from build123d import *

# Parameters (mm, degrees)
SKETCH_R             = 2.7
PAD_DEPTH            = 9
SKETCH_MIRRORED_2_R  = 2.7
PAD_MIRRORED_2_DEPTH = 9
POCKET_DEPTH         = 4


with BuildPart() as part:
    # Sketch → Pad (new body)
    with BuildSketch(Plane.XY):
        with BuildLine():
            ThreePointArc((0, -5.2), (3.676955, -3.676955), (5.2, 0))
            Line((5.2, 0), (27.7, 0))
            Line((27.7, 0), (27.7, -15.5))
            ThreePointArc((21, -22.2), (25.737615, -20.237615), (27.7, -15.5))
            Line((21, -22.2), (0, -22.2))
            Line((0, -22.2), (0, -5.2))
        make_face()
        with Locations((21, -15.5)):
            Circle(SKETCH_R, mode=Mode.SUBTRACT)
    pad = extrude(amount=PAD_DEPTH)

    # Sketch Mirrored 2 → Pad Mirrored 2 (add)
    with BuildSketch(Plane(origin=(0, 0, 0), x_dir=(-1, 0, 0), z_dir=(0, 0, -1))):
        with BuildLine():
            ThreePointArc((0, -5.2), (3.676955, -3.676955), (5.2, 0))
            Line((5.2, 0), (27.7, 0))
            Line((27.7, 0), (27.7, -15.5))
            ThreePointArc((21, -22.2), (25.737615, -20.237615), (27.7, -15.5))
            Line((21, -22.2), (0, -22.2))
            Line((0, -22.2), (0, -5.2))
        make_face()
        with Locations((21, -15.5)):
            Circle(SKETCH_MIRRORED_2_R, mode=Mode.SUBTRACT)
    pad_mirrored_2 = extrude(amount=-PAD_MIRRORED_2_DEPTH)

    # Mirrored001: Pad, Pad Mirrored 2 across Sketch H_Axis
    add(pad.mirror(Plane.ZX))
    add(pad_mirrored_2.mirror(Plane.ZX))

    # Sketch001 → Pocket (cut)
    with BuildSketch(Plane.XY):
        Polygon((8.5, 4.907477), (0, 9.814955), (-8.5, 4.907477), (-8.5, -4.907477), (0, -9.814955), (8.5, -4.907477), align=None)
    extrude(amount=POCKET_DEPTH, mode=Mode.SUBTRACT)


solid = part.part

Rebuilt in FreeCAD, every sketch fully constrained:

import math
import FreeCAD as App
import Part
import Sketcher
from FreeCAD import Vector
Q = App.Units.Quantity


def add_polygon(sketch, points):
    """Adds a closed chain of lines whose ends are joined by coincident constraints."""
    first, n = sketch.GeometryCount, len(points)
    for a, b in zip(points, points[1:] + points[:1]):
        sketch.addGeometry(Part.LineSegment(App.Vector(*a, 0), App.Vector(*b, 0)), False)
    for i in range(n):
        sketch.addConstraint(Sketcher.Constraint("Coincident", first + i, 2, first + (i + 1) % n, 1))

doc = App.newDocument("Part")
params = doc.addObject("Spreadsheet::Sheet", "Params")
for row, (alias, value) in enumerate([
    ("sketch1_diameter", "5.4 mm"),
    ("sketch1_radius", "5.200001 mm"),
    ("sketch1_radius2", "6.700001 mm"),
    ("sketch1_width", "21 mm"),
    ("sketch1_height", "17 mm"),
    ("pad1_length", "9 mm"),
    ("sketch2_diameter", "5.4 mm"),
    ("sketch2_radius", "5.200001 mm"),
    ("sketch2_radius2", "6.700001 mm"),
    ("sketch2_width", "21 mm"),
    ("sketch2_height", "17 mm"),
    ("pad2_length", "9 mm"),
    ("pocket1_length", "4 mm"),
], start=1):
    params.set(f"A{row}", alias)
    params.set(f"B{row}", "=" + value)
    params.setAlias(f"B{row}", alias)

body = doc.addObject("PartDesign::Body", "Body")

# Sketch on XY plane
sketch1 = body.newObject("Sketcher::SketchObject", "Sketch")
sketch1.AttachmentSupport = (doc.getObject("XY_Plane"), [""])
sketch1.MapMode = "FlatFace"
sketch1.addGeometry([
    Part.ArcOfCircle(Part.Circle(Vector(-0.000001, 0.000001, 0), Vector(0, 0, 1), 5.200001), math.radians(-89.99999), math.radians(-0.00001)),  # 0
    Part.LineSegment(Vector(0, -5.2, 0), Vector(0, -22.2, 0)),  # 1
    Part.LineSegment(Vector(0, -22.2, 0), Vector(21, -22.2, 0)),  # 2
    Part.ArcOfCircle(Part.Circle(Vector(20.999999, -15.499999, 0), Vector(0, 0, 1), 6.700001), math.radians(-89.999987), math.radians(-0.000013)),  # 3
    Part.LineSegment(Vector(27.7, -15.5, 0), Vector(27.7, 0, 0)),  # 4
    Part.LineSegment(Vector(27.7, 0, 0), Vector(5.2, 0, 0)),  # 5
    Part.Circle(Vector(21, -15.5, 0), Vector(0, 0, 1), 2.7),  # 6
], False)
sketch1.addConstraint([
    Sketcher.Constraint("Coincident", 0, 1, 1, 1),
    Sketcher.Constraint("Coincident", 1, 2, 2, 1),
    Sketcher.Constraint("Tangent", 2, 2, 3, 1),
    Sketcher.Constraint("Tangent", 3, 2, 4, 1),
    Sketcher.Constraint("Coincident", 4, 2, 5, 1),
    Sketcher.Constraint("Coincident", 5, 2, 0, 2),
    Sketcher.Constraint("Vertical", 1),
    Sketcher.Constraint("Horizontal", 2),
    Sketcher.Constraint("Vertical", 4),
    Sketcher.Constraint("Horizontal", 5),
    Sketcher.Constraint("Coincident", 0, 3, -1, 1),
    Sketcher.Constraint("Coincident", 6, 3, 3, 3),
    Sketcher.Constraint("PointOnObject", 0, 1, -2),
    Sketcher.Constraint("PointOnObject", 4, 2, -1),
    Sketcher.Constraint("Diameter", 6, 5.4),
    Sketcher.Constraint("Radius", 0, 5.200001),
    Sketcher.Constraint("Radius", 3, 6.700001),
    Sketcher.Constraint("DistanceX", 2, 1, 2, 2, 21.0),
    Sketcher.Constraint("DistanceY", 1, 2, 1, 1, 17.0),
])
sketch1.setExpression("Constraints[14]", "Params.sketch1_diameter")
sketch1.setExpression("Constraints[15]", "Params.sketch1_radius")
sketch1.setExpression("Constraints[16]", "Params.sketch1_radius2")
sketch1.setExpression("Constraints[17]", "Params.sketch1_width")
sketch1.setExpression("Constraints[18]", "Params.sketch1_height")
pad1 = body.newObject("PartDesign::Pad", "Pad")
pad1.Profile = sketch1
pad1.setExpression("Length", "Params.pad1_length")

# Sketch on XY plane
sketch2 = body.newObject("Sketcher::SketchObject", "Sketch001")
sketch2.AttachmentSupport = (doc.getObject("XY_Plane"), [""])
sketch2.MapMode = "FlatFace"
sketch2.addGeometry([
    Part.ArcOfCircle(Part.Circle(Vector(0.000001, 0.000001, 0), Vector(0, 0, 1), 5.200001), math.radians(-179.99999), math.radians(-90.00001)),  # 0
    Part.LineSegment(Vector(0, -5.2, 0), Vector(0, -22.2, 0)),  # 1
    Part.LineSegment(Vector(0, -22.2, 0), Vector(-21, -22.2, 0)),  # 2
    Part.ArcOfCircle(Part.Circle(Vector(-20.999999, -15.499999, 0), Vector(0, 0, 1), 6.700001), math.radians(-179.999987), math.radians(-90.000013)),  # 3
    Part.LineSegment(Vector(-27.7, -15.5, 0), Vector(-27.7, 0, 0)),  # 4
    Part.LineSegment(Vector(-27.7, 0, 0), Vector(-5.2, 0, 0)),  # 5
    Part.Circle(Vector(-21, -15.5, 0), Vector(0, 0, 1), 2.7),  # 6
], False)
sketch2.addConstraint([
    Sketcher.Constraint("Coincident", 0, 2, 1, 1),
    Sketcher.Constraint("Coincident", 1, 2, 2, 1),
    Sketcher.Constraint("Tangent", 2, 2, 3, 2),
    Sketcher.Constraint("Tangent", 3, 1, 4, 1),
    Sketcher.Constraint("Coincident", 4, 2, 5, 1),
    Sketcher.Constraint("Coincident", 5, 2, 0, 1),
    Sketcher.Constraint("Vertical", 1),
    Sketcher.Constraint("Horizontal", 2),
    Sketcher.Constraint("Vertical", 4),
    Sketcher.Constraint("Horizontal", 5),
    Sketcher.Constraint("Coincident", 0, 3, -1, 1),
    Sketcher.Constraint("Coincident", 6, 3, 3, 3),
    Sketcher.Constraint("PointOnObject", 0, 2, -2),
    Sketcher.Constraint("PointOnObject", 4, 2, -1),
    Sketcher.Constraint("Diameter", 6, 5.4),
    Sketcher.Constraint("Radius", 0, 5.200001),
    Sketcher.Constraint("Radius", 3, 6.700001),
    Sketcher.Constraint("DistanceX", 2, 2, 2, 1, 21.0),
    Sketcher.Constraint("DistanceY", 1, 2, 1, 1, 17.0),
])
sketch2.setExpression("Constraints[14]", "Params.sketch2_diameter")
sketch2.setExpression("Constraints[15]", "Params.sketch2_radius")
sketch2.setExpression("Constraints[16]", "Params.sketch2_radius2")
sketch2.setExpression("Constraints[17]", "Params.sketch2_width")
sketch2.setExpression("Constraints[18]", "Params.sketch2_height")
pad2 = body.newObject("PartDesign::Pad", "Pad001")
pad2.Profile = sketch2
pad2.setExpression("Length", "Params.pad2_length")
doc.recompute()

mirrored = body.newObject("PartDesign::Mirrored", "Mirrored")
mirrored.Originals = [pad1, pad2]
mirrored.MirrorPlane = (doc.getObject("XZ_Plane"), [""])
body.Tip = mirrored

# Sketch on XY plane
sketch3 = body.newObject("Sketcher::SketchObject", "Sketch002")
sketch3.AttachmentSupport = (doc.getObject("XY_Plane"), [""])
sketch3.MapMode = "FlatFace"
add_polygon(sketch3, [(8.5, 4.907477), (0, 9.814955), (-8.5, 4.907477), (-8.5, -4.907477), (0, -9.814955), (8.5, -4.907477)])  # lines 0-5
sketch3.addConstraint([
    Sketcher.Constraint("Vertical", 2),
    Sketcher.Constraint("Vertical", 5),
    Sketcher.Constraint("Symmetric", 0, 2, 3, 2, -1, 1),
    Sketcher.Constraint("Symmetric", 1, 2, 4, 2, -1, 1),
    Sketcher.Constraint("PointOnObject", 0, 2, -2),
    Sketcher.Constraint("Parallel", 0, 3),
    Sketcher.Constraint("Horizontal", 2, 2, 4, 2),
    Sketcher.Constraint("Angle", 0, Q("149.999996 deg")),
    Sketcher.Constraint("DistanceX", 2, 2, 4, 2, 17.0),
    Sketcher.Constraint("DistanceY", 2, 2, 2, 1, 9.814954),
])
pocket1 = body.newObject("PartDesign::Pocket", "Pocket")
pocket1.Profile = sketch3
pocket1.setExpression("Length", "Params.pocket1_length")
pocket1.Reversed = True

doc.recompute()
